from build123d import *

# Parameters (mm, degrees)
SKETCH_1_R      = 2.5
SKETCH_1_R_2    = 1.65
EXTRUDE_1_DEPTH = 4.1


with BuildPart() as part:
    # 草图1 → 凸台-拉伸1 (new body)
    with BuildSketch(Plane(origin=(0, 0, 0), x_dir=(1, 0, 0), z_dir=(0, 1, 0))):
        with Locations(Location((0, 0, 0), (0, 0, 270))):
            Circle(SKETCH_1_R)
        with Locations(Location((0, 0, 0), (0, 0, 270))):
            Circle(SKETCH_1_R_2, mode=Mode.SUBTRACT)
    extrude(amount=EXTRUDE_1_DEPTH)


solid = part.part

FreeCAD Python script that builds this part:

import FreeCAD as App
import Part
import Sketcher

V = App.Vector

doc = App.newDocument("Part")
body = doc.addObject("PartDesign::Body", "Body")

sketch1 = body.newObject("Sketcher::SketchObject", "Sketch")
sketch1.AttachmentSupport = (doc.getObject("XZ_Plane"), [""])
sketch1.MapMode = "FlatFace"
sketch1.addGeometry(Part.Circle(V(0, 0, 0), V(0, 0, 1), 2.5), False)
sketch1.addGeometry(Part.Circle(V(0, 0, 0), V(0, 0, 1), 1.6), False)
sketch1.addConstraint(Sketcher.Constraint("Coincident", 0, 3, -1, 1))
sketch1.addConstraint(Sketcher.Constraint("Coincident", 1, 3, -1, 1))
sketch1.addConstraint(Sketcher.Constraint("Diameter", 0, 5.0))
sketch1.addConstraint(Sketcher.Constraint("Diameter", 1, 3.3))
pad1 = body.newObject("PartDesign::Pad", "Pad")
pad1.Profile = sketch1
pad1.Length = 4.1
pad1.Reversed = True

doc.recompute()
